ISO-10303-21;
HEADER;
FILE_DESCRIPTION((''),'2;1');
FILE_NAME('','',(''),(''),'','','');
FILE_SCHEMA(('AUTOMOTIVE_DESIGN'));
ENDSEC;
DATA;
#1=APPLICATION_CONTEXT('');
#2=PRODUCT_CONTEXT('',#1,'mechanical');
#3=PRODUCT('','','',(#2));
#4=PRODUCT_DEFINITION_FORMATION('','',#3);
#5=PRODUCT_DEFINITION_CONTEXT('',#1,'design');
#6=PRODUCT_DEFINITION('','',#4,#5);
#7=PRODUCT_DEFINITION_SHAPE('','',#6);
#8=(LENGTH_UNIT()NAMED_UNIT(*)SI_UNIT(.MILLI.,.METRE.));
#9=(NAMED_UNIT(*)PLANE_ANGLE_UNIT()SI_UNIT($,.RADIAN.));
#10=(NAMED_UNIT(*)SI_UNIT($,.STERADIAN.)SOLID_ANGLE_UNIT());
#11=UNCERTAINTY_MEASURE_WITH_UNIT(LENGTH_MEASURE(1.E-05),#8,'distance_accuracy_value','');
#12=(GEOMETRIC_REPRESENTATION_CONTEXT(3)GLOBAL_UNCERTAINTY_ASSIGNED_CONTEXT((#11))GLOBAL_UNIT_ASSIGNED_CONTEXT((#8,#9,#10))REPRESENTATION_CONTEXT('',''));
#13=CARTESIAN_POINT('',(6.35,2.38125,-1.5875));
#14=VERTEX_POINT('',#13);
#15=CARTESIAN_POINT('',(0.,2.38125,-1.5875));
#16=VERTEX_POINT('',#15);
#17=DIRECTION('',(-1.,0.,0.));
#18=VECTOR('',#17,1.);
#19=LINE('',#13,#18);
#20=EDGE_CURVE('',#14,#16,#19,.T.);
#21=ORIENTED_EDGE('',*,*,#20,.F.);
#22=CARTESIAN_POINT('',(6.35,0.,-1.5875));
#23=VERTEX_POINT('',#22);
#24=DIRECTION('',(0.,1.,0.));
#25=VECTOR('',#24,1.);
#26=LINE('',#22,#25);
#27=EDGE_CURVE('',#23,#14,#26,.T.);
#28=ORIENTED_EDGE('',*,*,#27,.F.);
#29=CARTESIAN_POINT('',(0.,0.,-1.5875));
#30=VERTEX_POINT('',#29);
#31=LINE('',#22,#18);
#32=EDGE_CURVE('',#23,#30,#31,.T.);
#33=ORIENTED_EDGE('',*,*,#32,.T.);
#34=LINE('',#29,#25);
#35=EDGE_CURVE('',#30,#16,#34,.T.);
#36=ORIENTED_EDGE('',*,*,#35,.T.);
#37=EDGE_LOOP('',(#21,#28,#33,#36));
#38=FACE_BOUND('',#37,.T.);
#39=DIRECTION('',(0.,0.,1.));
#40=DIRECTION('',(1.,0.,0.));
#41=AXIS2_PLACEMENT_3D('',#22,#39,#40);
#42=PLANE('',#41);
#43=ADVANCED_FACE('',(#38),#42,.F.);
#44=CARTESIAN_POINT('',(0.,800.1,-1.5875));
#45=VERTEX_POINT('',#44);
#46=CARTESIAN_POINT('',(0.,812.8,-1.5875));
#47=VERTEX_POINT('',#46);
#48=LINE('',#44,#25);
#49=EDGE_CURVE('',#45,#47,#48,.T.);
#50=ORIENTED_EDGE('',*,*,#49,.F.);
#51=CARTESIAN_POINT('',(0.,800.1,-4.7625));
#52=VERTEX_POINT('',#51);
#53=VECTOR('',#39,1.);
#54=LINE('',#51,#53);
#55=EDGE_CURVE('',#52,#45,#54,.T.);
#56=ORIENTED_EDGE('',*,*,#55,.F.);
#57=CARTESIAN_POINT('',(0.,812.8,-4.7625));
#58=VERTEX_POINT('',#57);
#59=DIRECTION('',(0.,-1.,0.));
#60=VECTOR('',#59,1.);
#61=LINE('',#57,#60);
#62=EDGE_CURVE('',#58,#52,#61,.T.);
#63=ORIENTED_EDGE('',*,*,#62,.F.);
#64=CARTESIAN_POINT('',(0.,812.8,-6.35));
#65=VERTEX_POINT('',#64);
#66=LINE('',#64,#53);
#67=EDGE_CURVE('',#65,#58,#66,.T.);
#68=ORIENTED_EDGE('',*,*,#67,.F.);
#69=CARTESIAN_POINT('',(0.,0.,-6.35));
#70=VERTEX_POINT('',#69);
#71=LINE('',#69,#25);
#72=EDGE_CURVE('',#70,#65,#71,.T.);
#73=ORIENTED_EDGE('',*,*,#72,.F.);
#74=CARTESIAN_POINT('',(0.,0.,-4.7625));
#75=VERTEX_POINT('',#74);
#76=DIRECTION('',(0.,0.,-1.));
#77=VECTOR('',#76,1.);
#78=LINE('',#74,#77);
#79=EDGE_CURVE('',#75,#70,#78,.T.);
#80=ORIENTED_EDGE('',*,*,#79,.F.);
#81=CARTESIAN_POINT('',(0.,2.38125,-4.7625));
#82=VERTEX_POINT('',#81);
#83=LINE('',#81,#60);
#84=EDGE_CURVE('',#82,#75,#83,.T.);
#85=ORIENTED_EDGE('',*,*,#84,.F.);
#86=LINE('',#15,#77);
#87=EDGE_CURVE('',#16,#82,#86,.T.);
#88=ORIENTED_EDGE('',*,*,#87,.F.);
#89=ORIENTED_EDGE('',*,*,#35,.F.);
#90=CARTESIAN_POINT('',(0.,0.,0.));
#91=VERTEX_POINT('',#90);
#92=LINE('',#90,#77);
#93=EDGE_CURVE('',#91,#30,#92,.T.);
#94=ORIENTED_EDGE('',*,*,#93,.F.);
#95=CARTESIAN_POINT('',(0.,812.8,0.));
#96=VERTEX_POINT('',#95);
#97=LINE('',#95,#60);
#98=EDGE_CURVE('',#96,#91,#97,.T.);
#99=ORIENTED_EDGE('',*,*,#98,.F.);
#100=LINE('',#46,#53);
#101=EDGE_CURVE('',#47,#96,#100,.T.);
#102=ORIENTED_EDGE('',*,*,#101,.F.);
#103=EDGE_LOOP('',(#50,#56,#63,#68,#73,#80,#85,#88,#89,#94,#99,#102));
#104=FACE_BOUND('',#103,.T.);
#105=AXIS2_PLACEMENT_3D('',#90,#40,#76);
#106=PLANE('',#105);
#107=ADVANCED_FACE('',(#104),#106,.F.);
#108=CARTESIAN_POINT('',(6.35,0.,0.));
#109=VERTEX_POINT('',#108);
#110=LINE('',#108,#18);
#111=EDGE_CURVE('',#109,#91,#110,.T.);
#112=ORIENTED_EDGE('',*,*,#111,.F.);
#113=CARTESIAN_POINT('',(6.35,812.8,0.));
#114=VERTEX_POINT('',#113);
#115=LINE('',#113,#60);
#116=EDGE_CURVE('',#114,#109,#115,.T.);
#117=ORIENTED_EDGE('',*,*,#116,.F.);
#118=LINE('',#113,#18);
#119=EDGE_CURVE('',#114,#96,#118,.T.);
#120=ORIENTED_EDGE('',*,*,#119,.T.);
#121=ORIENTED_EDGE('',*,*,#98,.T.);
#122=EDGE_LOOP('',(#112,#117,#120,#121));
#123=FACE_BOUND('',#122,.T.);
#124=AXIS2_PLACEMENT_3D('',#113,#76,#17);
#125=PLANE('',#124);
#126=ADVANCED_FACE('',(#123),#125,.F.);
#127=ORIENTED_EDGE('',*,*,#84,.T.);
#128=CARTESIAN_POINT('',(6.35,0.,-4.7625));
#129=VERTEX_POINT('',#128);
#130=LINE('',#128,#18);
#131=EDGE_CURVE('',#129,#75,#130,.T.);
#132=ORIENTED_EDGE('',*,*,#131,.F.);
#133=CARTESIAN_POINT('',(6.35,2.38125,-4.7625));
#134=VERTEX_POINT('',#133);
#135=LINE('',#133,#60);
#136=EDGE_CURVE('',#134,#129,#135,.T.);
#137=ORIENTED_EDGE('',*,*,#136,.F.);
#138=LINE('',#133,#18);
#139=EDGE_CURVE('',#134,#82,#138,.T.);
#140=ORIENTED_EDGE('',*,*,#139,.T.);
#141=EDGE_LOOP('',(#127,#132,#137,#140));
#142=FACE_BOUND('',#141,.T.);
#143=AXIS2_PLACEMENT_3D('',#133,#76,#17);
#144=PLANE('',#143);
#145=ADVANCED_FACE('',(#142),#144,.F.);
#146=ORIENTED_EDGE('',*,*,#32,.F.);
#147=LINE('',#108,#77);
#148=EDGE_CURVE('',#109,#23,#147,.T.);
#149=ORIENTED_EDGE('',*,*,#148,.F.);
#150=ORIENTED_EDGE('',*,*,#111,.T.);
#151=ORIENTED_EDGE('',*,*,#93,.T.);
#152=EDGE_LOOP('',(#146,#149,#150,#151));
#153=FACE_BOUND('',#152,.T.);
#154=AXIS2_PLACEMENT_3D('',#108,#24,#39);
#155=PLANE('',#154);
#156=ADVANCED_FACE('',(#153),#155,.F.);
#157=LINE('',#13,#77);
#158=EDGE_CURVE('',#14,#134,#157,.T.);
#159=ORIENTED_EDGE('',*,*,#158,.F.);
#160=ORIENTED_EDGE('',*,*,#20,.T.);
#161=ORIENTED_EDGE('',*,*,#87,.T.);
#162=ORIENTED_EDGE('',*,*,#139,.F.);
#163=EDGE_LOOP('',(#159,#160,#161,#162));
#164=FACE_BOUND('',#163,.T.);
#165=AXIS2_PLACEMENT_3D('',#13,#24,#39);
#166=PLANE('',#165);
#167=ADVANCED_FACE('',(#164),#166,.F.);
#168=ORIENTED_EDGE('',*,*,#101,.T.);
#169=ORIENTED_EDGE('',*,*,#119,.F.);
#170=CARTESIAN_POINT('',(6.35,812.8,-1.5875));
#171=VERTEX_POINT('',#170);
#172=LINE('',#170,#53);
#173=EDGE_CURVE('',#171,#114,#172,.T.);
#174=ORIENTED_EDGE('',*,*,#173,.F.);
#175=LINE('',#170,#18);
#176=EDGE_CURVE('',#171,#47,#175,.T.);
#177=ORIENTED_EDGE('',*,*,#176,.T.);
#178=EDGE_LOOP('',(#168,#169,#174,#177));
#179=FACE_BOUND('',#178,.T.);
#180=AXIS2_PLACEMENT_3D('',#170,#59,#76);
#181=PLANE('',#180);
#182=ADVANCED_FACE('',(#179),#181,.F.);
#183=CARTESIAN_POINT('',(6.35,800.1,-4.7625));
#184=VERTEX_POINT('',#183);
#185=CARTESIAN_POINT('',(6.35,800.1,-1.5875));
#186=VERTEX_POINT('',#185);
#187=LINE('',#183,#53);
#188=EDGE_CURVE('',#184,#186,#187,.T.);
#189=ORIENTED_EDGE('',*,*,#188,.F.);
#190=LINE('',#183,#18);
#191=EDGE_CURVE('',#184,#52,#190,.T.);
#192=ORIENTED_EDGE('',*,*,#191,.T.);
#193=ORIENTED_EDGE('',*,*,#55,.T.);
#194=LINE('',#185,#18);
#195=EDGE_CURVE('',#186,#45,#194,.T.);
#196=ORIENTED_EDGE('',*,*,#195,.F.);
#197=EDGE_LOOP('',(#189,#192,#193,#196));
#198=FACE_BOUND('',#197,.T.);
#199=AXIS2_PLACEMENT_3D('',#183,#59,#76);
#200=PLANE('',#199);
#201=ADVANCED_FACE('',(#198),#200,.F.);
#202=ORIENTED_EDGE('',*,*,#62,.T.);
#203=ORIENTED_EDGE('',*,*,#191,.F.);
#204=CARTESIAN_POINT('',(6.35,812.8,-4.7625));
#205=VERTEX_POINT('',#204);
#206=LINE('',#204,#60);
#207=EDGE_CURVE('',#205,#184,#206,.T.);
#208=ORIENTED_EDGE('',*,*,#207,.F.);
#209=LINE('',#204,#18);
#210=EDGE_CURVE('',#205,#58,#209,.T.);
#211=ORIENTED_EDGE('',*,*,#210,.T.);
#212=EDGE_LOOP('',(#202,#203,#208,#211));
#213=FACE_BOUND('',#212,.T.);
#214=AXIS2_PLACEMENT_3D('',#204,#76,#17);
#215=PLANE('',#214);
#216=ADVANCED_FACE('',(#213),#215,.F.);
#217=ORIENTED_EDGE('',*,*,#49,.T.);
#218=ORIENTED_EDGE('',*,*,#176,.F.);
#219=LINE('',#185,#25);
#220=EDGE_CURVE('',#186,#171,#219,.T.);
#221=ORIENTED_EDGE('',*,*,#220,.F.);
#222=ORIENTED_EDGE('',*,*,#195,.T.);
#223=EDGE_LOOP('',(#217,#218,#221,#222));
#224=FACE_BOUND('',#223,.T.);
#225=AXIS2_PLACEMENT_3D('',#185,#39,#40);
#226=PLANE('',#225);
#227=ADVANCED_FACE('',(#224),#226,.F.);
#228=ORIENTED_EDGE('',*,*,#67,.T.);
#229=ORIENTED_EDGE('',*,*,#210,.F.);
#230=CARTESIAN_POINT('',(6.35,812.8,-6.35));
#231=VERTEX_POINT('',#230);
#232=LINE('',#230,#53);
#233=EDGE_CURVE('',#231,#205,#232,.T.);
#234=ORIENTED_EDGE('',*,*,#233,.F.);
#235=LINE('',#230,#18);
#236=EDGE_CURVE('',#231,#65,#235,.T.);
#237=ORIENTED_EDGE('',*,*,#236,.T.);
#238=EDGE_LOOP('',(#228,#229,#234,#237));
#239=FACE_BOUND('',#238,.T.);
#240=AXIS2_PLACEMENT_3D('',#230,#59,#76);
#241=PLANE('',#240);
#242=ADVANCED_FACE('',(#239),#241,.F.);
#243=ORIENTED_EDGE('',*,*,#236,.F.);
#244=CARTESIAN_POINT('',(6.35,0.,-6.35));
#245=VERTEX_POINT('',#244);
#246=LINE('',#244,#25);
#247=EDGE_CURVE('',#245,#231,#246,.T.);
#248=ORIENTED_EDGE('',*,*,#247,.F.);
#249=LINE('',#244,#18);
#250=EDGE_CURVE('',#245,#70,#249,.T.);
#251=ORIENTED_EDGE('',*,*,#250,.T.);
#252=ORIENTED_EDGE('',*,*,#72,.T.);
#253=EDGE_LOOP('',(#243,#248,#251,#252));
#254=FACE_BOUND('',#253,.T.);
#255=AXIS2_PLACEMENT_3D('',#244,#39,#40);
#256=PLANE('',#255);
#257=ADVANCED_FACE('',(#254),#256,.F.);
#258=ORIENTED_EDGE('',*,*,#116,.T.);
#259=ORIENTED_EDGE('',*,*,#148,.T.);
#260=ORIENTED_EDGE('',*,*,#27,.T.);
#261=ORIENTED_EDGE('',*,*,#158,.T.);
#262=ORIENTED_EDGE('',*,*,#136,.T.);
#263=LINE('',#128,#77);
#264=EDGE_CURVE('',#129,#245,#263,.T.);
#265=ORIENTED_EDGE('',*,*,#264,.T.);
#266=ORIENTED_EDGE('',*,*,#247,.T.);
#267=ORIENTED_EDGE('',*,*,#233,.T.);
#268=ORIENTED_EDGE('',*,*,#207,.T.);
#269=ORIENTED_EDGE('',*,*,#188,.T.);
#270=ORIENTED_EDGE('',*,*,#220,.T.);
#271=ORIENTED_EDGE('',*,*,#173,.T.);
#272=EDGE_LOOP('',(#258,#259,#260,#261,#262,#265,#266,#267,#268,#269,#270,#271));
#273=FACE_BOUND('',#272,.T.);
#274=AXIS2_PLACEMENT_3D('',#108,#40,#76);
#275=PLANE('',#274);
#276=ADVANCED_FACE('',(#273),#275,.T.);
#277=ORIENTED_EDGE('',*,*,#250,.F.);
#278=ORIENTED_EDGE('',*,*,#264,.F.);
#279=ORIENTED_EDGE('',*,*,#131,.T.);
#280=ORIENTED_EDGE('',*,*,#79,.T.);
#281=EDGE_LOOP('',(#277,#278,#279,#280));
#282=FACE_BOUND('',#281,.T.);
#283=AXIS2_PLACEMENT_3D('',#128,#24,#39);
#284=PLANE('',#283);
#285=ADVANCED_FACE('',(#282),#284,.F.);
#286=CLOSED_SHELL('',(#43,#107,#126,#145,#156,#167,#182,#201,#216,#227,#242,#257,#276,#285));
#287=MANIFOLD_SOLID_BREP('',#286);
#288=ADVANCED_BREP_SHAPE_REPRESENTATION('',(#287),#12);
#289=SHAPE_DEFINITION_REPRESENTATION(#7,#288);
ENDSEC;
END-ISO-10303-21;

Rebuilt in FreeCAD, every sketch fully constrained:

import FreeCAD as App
import Part
import Sketcher

V = App.Vector
Q = App.Units.Quantity

doc = App.newDocument("Part")
body = doc.addObject("PartDesign::Body", "Body")

# Sketch on YZ plane
sketch1 = body.newObject("Sketcher::SketchObject", "Sketch")
sketch1.AttachmentSupport = (doc.getObject("YZ_Plane"), [""])
sketch1.MapMode = "FlatFace"
sketch1.addGeometry(Part.LineSegment(V(0, 0, 0), V(0, -1.6, 0)), False)
sketch1.addGeometry(Part.LineSegment(V(0, -1.6, 0), V(2.4, -1.6, 0)), False)
sketch1.addGeometry(Part.LineSegment(V(2.4, -1.6, 0), V(2.4, -4.8, 0)), False)
sketch1.addGeometry(Part.LineSegment(V(2.4, -4.8, 0), V(0, -4.8, 0)), False)
sketch1.addGeometry(Part.LineSegment(V(0, -4.8, 0), V(0, -6.3, 0)), False)
sketch1.addGeometry(Part.LineSegment(V(0, -6.3, 0), V(812.8, -6.3, 0)), False)
sketch1.addGeometry(Part.LineSegment(V(812.8, -6.3, 0), V(812.8, -4.8, 0)), False)
sketch1.addGeometry(Part.LineSegment(V(812.8, -4.8, 0), V(800.1, -4.8, 0)), False)
sketch1.addGeometry(Part.LineSegment(V(800.1, -4.8, 0), V(800.1, -1.6, 0)), False)
sketch1.addGeometry(Part.LineSegment(V(800.1, -1.6, 0), V(812.8, -1.6, 0)), False)
sketch1.addGeometry(Part.LineSegment(V(812.8, -1.6, 0), V(812.8, 0, 0)), False)
sketch1.addGeometry(Part.LineSegment(V(812.8, 0, 0), V(0, 0, 0)), False)
sketch1.addConstraint(Sketcher.Constraint("Coincident", 0, 2, 1, 1))
sketch1.addConstraint(Sketcher.Constraint("Coincident", 1, 2, 2, 1))
sketch1.addConstraint(Sketcher.Constraint("Coincident", 2, 2, 3, 1))
sketch1.addConstraint(Sketcher.Constraint("Coincident", 3, 2, 4, 1))
sketch1.addConstraint(Sketcher.Constraint("Coincident", 4, 2, 5, 1))
sketch1.addConstraint(Sketcher.Constraint("Coincident", 5, 2, 6, 1))
sketch1.addConstraint(Sketcher.Constraint("Coincident", 6, 2, 7, 1))
sketch1.addConstraint(Sketcher.Constraint("Coincident", 7, 2, 8, 1))
sketch1.addConstraint(Sketcher.Constraint("Coincident", 8, 2, 9, 1))
sketch1.addConstraint(Sketcher.Constraint("Coincident", 9, 2, 10, 1))
sketch1.addConstraint(Sketcher.Constraint("Coincident", 10, 2, 11, 1))
sketch1.addConstraint(Sketcher.Constraint("Coincident", 11, 2, 0, 1))
sketch1.addConstraint(Sketcher.Constraint("Vertical", 0))
sketch1.addConstraint(Sketcher.Constraint("Horizontal", 1))
sketch1.addConstraint(Sketcher.Constraint("Vertical", 2))
sketch1.addConstraint(Sketcher.Constraint("Horizontal", 3))
sketch1.addConstraint(Sketcher.Constraint("Vertical", 4))
sketch1.addConstraint(Sketcher.Constraint("Horizontal", 5))
sketch1.addConstraint(Sketcher.Constraint("Vertical", 6))
sketch1.addConstraint(Sketcher.Constraint("Horizontal", 7))
sketch1.addConstraint(Sketcher.Constraint("Vertical", 8))
sketch1.addConstraint(Sketcher.Constraint("Horizontal", 9))
sketch1.addConstraint(Sketcher.Constraint("Vertical", 10))
sketch1.addConstraint(Sketcher.Constraint("Horizontal", 11))
sketch1.addConstraint(Sketcher.Constraint("Coincident", 11, 2, -1, 1))
sketch1.addConstraint(Sketcher.Constraint("PointOnObject", 3, 2, -2))
sketch1.addConstraint(Sketcher.Constraint("Horizontal", 3, 2, 6, 2))
sketch1.addConstraint(Sketcher.Constraint("Horizontal", 1, 2, 8, 2))
sketch1.addConstraint(Sketcher.Constraint("Vertical", 6, 2, 9, 2))
sketch1.addConstraint(Sketcher.Constraint("Equal", 0, 4))
sketch1.addConstraint(Sketcher.Constraint("DistanceX", 5, 1, 5, 2, Q("32 in")))
sketch1.addConstraint(Sketcher.Constraint("DistanceX", 7, 2, 7, 1, Q("0.5 in")))
sketch1.addConstraint(Sketcher.Constraint("DistanceX", 1, 1, 1, 2, Q("0.09375 in")))
sketch1.addConstraint(Sketcher.Constraint("DistanceY", 0, 2, 0, 1, Q("0.0625 in")))
sketch1.addConstraint(Sketcher.Constraint("DistanceY", 2, 2, 2, 1, Q("0.125 in")))
pad1 = body.newObject("PartDesign::Pad", "Pad")
pad1.Profile = sketch1
pad1.Length = Q("0.25 in")

doc.recompute()
